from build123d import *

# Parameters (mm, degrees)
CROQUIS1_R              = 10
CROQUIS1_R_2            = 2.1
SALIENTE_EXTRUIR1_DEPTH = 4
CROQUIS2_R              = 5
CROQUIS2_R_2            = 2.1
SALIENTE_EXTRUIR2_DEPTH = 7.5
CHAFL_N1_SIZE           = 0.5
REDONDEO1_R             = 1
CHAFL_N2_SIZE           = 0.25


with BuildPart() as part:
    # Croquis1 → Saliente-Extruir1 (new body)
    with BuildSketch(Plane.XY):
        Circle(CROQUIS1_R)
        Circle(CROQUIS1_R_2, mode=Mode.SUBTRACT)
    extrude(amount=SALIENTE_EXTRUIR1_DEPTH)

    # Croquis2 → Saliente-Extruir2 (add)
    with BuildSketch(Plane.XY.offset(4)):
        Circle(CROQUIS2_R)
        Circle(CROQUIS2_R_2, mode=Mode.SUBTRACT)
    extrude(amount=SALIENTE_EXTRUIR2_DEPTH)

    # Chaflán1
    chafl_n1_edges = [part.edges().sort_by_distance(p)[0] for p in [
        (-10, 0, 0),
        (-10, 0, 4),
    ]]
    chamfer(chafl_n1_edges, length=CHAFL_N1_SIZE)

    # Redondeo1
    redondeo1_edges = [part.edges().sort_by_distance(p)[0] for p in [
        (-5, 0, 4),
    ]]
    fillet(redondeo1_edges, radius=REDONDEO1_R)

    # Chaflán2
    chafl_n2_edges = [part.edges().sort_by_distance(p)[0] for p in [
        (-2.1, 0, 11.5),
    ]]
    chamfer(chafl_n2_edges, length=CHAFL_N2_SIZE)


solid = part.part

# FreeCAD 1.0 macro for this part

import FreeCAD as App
import Part
import Sketcher
from FreeCAD import Vector


def edges_at(feature, points):
    """Names of the edges that pass closest to the given points."""
    edges = feature.Shape.Edges
    near = lambda p: min(range(len(edges)), key=lambda i: edges[i].distToShape(Part.Vertex(*p))[0])
    return sorted({f"Edge{near(p) + 1}" for p in points})

doc = App.newDocument("Part")
body = doc.addObject("PartDesign::Body", "Body")

sketch1 = body.newObject("Sketcher::SketchObject", "Sketch")
sketch1.AttachmentSupport = (doc.getObject("XY_Plane"), [""])
sketch1.MapMode = "FlatFace"
sketch1.addGeometry([
    Part.Circle(Vector(0, 0, 0), Vector(0, 0, 1), 10),
    Part.Circle(Vector(0, 0, 0), Vector(0, 0, 1), 2.1),
], False)
sketch1.addConstraint([
    Sketcher.Constraint("Coincident", 0, 3, -1, 1),
    Sketcher.Constraint("Coincident", 1, 3, -1, 1),
    Sketcher.Constraint("Diameter", 0, 20.0),
    Sketcher.Constraint("Diameter", 1, 4.2),
])
pad1 = body.newObject("PartDesign::Pad", "Pad")
pad1.Profile = sketch1
pad1.Length = 4

sketch2 = body.newObject("Sketcher::SketchObject", "Sketch001")
sketch2.AttachmentSupport = (doc.getObject("XY_Plane"), [""])
sketch2.MapMode = "FlatFace"
sketch2.AttachmentOffset = App.Placement(Vector(0, 0, 4), App.Rotation())
sketch2.addGeometry([
    Part.Circle(Vector(0, 0, 0), Vector(0, 0, 1), 5),
    Part.Circle(Vector(0, 0, 0), Vector(0, 0, 1), 2.1),
], False)
sketch2.addConstraint([
    Sketcher.Constraint("Coincident", 0, 3, -1, 1),
    Sketcher.Constraint("Coincident", 1, 3, -1, 1),
    Sketcher.Constraint("Diameter", 0, 10.0),
    Sketcher.Constraint("Diameter", 1, 4.2),
])
pad2 = body.newObject("PartDesign::Pad", "Pad001")
pad2.Profile = sketch2
pad2.Length = 7.5
doc.recompute()

chamfer = body.newObject("PartDesign::Chamfer", "Chamfer")
chamfer.Base = (pad2, edges_at(pad2, [(-10, 0, 0), (-10, 0, 4)]))
chamfer.Size = 0.5
doc.recompute()

fillet = body.newObject("PartDesign::Fillet", "Fillet")
fillet.Base = (chamfer, edges_at(chamfer, [(-5, 0, 4)]))
fillet.Radius = 1
doc.recompute()

chamfer2 = body.newObject("PartDesign::Chamfer", "Chamfer001")
chamfer2.Base = (fillet, edges_at(fillet, [(-2.1, 0, 11.5)]))
chamfer2.Size = 0.25

doc.recompute()
